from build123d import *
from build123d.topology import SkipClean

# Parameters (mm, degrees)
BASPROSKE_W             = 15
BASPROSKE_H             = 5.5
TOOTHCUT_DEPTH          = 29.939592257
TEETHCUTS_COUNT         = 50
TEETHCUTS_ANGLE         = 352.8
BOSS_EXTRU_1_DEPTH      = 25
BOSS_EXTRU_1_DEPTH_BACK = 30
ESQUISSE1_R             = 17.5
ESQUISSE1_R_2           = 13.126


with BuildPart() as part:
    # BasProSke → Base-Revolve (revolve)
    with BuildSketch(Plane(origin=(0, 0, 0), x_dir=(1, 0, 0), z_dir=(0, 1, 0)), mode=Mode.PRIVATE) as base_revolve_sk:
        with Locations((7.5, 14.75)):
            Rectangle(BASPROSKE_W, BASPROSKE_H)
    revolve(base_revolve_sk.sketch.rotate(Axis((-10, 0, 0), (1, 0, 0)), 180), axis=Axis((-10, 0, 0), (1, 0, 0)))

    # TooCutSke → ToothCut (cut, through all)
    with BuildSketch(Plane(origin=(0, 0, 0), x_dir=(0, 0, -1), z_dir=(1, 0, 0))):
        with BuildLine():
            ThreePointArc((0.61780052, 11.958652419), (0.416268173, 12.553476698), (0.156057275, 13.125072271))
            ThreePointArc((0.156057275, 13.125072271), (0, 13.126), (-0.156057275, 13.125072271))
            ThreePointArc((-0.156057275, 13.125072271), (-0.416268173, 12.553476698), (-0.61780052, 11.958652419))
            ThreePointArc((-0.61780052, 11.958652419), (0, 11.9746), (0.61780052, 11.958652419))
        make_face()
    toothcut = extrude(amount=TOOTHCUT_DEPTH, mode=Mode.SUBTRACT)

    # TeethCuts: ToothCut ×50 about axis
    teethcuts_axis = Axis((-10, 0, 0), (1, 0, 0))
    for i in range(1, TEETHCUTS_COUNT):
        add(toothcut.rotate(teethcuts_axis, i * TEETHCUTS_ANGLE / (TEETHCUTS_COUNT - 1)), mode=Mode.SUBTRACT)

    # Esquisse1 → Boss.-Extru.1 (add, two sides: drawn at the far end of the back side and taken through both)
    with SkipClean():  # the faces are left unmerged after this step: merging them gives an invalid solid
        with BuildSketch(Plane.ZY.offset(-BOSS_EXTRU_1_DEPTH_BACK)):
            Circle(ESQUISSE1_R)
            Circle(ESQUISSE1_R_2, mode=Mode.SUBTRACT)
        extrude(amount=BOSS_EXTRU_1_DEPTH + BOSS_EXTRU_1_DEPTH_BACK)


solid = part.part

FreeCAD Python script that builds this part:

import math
import FreeCAD as App
import Part
import Sketcher

V = App.Vector
Q = App.Units.Quantity

doc = App.newDocument("Part")
body = doc.addObject("PartDesign::Body", "Body")

# Sketch on XZ plane
sketch1 = body.newObject("Sketcher::SketchObject", "Sketch")
sketch1.AttachmentSupport = (doc.getObject("XZ_Plane"), [""])
sketch1.MapMode = "FlatFace"
sketch1.addGeometry(Part.LineSegment(V(0, -17.5, 0), V(0, -12, 0)), False)
sketch1.addGeometry(Part.LineSegment(V(0, -12, 0), V(15, -12, 0)), False)
sketch1.addGeometry(Part.LineSegment(V(15, -12, 0), V(15, -17.5, 0)), False)
sketch1.addGeometry(Part.LineSegment(V(15, -17.5, 0), V(0, -17.5, 0)), False)
sketch1.addConstraint(Sketcher.Constraint("Coincident", 0, 2, 1, 1))
sketch1.addConstraint(Sketcher.Constraint("Coincident", 1, 2, 2, 1))
sketch1.addConstraint(Sketcher.Constraint("Coincident", 2, 2, 3, 1))
sketch1.addConstraint(Sketcher.Constraint("Coincident", 3, 2, 0, 1))
sketch1.addConstraint(Sketcher.Constraint("Vertical", 0))
sketch1.addConstraint(Sketcher.Constraint("Horizontal", 1))
sketch1.addConstraint(Sketcher.Constraint("Vertical", 2))
sketch1.addConstraint(Sketcher.Constraint("Horizontal", 3))
sketch1.addConstraint(Sketcher.Constraint("PointOnObject", 0, 2, -2))
sketch1.addConstraint(Sketcher.Constraint("DistanceX", 1, 1, 1, 2, Q("15 mm")))
sketch1.addConstraint(Sketcher.Constraint("DistanceY", 0, 1, 0, 2, Q("5.5 mm")))
sketch1.addConstraint(Sketcher.Constraint("DistanceY", 0, 2, -1, 1, Q("12 mm")))
revolution = body.newObject("PartDesign::Revolution", "Revolution")
revolution.Profile = sketch1
revolution.ReferenceAxis = (sketch1, ["H_Axis"])
revolution.Angle = 360

# Sketch on YZ plane
sketch2 = body.newObject("Sketcher::SketchObject", "Sketch001")
sketch2.AttachmentSupport = (doc.getObject("YZ_Plane"), [""])
sketch2.MapMode = "FlatFace"
sketch2.addGeometry(Part.ArcOfCircle(Part.Circle(V(10.253021, 5.394963, 0), V(0, 0, 1), 6.25), math.radians(-74.163036), math.radians(-62.643337)), False)
sketch2.addGeometry(Part.ArcOfCircle(Part.Circle(V(0.000004, 0, 0), V(0, 0, 1), 13.125996), math.radians(-0.681216), math.radians(0.681216)), False)
sketch2.addGeometry(Part.ArcOfCircle(Part.Circle(V(10.253021, -5.394963, 0), V(0, 0, 1), 6.25), math.radians(62.643337), math.radians(74.163036)), False)
sketch2.addGeometry(Part.ArcOfCircle(Part.Circle(V(0, 0, 0), V(0, 0, 1), 11.9746), math.radians(-2.95735), math.radians(2.95735)), False)
sketch2.addConstraint(Sketcher.Constraint("Coincident", 0, 2, 1, 1))
sketch2.addConstraint(Sketcher.Constraint("Coincident", 1, 2, 2, 1))
sketch2.addConstraint(Sketcher.Constraint("Coincident", 2, 2, 3, 2))
sketch2.addConstraint(Sketcher.Constraint("Coincident", 3, 1, 0, 1))
sketch2.addConstraint(Sketcher.Constraint("Coincident", 1, 3, -1, 1))
sketch2.addConstraint(Sketcher.Constraint("Coincident", 3, 3, -1, 1))
sketch2.addConstraint(Sketcher.Constraint("Equal", 0, 2))
sketch2.addConstraint(Sketcher.Constraint("Symmetric", 0, 3, 2, 3, -1))
sketch2.addConstraint(Sketcher.Constraint("Radius", 0, Q("6.25 mm")))
sketch2.addConstraint(Sketcher.Constraint("Radius", 3, Q("11.9746 mm")))
sketch2.addConstraint(Sketcher.Constraint("Radius", 1, Q("13.125996 mm")))
sketch2.addConstraint(Sketcher.Constraint("DistanceY", -1, 1, 2, 2, Q("0.617801 mm")))
sketch2.addConstraint(Sketcher.Constraint("DistanceX", -1, 1, 0, 3, Q("10.253021 mm")))
pocket1 = body.newObject("PartDesign::Pocket", "Pocket")
pocket1.Profile = sketch2
pocket1.Type = "ThroughAll"
pocket1.Reversed = True
doc.recompute()

polarpattern = body.newObject("PartDesign::PolarPattern", "PolarPattern")
polarpattern.Originals = [pocket1]
polarpattern.Axis = (doc.getObject("X_Axis"), [""])
polarpattern.Angle = 360
polarpattern.Occurrences = 50
body.Tip = polarpattern

# Sketch on YZ plane
sketch3 = body.newObject("Sketcher::SketchObject", "Sketch002")
sketch3.AttachmentSupport = (doc.getObject("YZ_Plane"), [""])
sketch3.MapMode = "FlatFace"
sketch3.addGeometry(Part.Circle(V(0, 0, 0), V(0, 0, 1), 17.5), False)
sketch3.addGeometry(Part.Circle(V(0, 0, 0), V(0, 0, 1), 13.126), False)
sketch3.addConstraint(Sketcher.Constraint("Coincident", 0, 3, -1, 1))
sketch3.addConstraint(Sketcher.Constraint("Coincident", 1, 3, -1, 1))
sketch3.addConstraint(Sketcher.Constraint("Diameter", 0, Q("35 mm")))
sketch3.addConstraint(Sketcher.Constraint("Diameter", 1, Q("26.252 mm")))
pad1 = body.newObject("PartDesign::Pad", "Pad")
pad1.Profile = sketch3
pad1.Type = "TwoLengths"
pad1.Length = 25
pad1.Length2 = 30
pad1.Reversed = True

doc.recompute()
